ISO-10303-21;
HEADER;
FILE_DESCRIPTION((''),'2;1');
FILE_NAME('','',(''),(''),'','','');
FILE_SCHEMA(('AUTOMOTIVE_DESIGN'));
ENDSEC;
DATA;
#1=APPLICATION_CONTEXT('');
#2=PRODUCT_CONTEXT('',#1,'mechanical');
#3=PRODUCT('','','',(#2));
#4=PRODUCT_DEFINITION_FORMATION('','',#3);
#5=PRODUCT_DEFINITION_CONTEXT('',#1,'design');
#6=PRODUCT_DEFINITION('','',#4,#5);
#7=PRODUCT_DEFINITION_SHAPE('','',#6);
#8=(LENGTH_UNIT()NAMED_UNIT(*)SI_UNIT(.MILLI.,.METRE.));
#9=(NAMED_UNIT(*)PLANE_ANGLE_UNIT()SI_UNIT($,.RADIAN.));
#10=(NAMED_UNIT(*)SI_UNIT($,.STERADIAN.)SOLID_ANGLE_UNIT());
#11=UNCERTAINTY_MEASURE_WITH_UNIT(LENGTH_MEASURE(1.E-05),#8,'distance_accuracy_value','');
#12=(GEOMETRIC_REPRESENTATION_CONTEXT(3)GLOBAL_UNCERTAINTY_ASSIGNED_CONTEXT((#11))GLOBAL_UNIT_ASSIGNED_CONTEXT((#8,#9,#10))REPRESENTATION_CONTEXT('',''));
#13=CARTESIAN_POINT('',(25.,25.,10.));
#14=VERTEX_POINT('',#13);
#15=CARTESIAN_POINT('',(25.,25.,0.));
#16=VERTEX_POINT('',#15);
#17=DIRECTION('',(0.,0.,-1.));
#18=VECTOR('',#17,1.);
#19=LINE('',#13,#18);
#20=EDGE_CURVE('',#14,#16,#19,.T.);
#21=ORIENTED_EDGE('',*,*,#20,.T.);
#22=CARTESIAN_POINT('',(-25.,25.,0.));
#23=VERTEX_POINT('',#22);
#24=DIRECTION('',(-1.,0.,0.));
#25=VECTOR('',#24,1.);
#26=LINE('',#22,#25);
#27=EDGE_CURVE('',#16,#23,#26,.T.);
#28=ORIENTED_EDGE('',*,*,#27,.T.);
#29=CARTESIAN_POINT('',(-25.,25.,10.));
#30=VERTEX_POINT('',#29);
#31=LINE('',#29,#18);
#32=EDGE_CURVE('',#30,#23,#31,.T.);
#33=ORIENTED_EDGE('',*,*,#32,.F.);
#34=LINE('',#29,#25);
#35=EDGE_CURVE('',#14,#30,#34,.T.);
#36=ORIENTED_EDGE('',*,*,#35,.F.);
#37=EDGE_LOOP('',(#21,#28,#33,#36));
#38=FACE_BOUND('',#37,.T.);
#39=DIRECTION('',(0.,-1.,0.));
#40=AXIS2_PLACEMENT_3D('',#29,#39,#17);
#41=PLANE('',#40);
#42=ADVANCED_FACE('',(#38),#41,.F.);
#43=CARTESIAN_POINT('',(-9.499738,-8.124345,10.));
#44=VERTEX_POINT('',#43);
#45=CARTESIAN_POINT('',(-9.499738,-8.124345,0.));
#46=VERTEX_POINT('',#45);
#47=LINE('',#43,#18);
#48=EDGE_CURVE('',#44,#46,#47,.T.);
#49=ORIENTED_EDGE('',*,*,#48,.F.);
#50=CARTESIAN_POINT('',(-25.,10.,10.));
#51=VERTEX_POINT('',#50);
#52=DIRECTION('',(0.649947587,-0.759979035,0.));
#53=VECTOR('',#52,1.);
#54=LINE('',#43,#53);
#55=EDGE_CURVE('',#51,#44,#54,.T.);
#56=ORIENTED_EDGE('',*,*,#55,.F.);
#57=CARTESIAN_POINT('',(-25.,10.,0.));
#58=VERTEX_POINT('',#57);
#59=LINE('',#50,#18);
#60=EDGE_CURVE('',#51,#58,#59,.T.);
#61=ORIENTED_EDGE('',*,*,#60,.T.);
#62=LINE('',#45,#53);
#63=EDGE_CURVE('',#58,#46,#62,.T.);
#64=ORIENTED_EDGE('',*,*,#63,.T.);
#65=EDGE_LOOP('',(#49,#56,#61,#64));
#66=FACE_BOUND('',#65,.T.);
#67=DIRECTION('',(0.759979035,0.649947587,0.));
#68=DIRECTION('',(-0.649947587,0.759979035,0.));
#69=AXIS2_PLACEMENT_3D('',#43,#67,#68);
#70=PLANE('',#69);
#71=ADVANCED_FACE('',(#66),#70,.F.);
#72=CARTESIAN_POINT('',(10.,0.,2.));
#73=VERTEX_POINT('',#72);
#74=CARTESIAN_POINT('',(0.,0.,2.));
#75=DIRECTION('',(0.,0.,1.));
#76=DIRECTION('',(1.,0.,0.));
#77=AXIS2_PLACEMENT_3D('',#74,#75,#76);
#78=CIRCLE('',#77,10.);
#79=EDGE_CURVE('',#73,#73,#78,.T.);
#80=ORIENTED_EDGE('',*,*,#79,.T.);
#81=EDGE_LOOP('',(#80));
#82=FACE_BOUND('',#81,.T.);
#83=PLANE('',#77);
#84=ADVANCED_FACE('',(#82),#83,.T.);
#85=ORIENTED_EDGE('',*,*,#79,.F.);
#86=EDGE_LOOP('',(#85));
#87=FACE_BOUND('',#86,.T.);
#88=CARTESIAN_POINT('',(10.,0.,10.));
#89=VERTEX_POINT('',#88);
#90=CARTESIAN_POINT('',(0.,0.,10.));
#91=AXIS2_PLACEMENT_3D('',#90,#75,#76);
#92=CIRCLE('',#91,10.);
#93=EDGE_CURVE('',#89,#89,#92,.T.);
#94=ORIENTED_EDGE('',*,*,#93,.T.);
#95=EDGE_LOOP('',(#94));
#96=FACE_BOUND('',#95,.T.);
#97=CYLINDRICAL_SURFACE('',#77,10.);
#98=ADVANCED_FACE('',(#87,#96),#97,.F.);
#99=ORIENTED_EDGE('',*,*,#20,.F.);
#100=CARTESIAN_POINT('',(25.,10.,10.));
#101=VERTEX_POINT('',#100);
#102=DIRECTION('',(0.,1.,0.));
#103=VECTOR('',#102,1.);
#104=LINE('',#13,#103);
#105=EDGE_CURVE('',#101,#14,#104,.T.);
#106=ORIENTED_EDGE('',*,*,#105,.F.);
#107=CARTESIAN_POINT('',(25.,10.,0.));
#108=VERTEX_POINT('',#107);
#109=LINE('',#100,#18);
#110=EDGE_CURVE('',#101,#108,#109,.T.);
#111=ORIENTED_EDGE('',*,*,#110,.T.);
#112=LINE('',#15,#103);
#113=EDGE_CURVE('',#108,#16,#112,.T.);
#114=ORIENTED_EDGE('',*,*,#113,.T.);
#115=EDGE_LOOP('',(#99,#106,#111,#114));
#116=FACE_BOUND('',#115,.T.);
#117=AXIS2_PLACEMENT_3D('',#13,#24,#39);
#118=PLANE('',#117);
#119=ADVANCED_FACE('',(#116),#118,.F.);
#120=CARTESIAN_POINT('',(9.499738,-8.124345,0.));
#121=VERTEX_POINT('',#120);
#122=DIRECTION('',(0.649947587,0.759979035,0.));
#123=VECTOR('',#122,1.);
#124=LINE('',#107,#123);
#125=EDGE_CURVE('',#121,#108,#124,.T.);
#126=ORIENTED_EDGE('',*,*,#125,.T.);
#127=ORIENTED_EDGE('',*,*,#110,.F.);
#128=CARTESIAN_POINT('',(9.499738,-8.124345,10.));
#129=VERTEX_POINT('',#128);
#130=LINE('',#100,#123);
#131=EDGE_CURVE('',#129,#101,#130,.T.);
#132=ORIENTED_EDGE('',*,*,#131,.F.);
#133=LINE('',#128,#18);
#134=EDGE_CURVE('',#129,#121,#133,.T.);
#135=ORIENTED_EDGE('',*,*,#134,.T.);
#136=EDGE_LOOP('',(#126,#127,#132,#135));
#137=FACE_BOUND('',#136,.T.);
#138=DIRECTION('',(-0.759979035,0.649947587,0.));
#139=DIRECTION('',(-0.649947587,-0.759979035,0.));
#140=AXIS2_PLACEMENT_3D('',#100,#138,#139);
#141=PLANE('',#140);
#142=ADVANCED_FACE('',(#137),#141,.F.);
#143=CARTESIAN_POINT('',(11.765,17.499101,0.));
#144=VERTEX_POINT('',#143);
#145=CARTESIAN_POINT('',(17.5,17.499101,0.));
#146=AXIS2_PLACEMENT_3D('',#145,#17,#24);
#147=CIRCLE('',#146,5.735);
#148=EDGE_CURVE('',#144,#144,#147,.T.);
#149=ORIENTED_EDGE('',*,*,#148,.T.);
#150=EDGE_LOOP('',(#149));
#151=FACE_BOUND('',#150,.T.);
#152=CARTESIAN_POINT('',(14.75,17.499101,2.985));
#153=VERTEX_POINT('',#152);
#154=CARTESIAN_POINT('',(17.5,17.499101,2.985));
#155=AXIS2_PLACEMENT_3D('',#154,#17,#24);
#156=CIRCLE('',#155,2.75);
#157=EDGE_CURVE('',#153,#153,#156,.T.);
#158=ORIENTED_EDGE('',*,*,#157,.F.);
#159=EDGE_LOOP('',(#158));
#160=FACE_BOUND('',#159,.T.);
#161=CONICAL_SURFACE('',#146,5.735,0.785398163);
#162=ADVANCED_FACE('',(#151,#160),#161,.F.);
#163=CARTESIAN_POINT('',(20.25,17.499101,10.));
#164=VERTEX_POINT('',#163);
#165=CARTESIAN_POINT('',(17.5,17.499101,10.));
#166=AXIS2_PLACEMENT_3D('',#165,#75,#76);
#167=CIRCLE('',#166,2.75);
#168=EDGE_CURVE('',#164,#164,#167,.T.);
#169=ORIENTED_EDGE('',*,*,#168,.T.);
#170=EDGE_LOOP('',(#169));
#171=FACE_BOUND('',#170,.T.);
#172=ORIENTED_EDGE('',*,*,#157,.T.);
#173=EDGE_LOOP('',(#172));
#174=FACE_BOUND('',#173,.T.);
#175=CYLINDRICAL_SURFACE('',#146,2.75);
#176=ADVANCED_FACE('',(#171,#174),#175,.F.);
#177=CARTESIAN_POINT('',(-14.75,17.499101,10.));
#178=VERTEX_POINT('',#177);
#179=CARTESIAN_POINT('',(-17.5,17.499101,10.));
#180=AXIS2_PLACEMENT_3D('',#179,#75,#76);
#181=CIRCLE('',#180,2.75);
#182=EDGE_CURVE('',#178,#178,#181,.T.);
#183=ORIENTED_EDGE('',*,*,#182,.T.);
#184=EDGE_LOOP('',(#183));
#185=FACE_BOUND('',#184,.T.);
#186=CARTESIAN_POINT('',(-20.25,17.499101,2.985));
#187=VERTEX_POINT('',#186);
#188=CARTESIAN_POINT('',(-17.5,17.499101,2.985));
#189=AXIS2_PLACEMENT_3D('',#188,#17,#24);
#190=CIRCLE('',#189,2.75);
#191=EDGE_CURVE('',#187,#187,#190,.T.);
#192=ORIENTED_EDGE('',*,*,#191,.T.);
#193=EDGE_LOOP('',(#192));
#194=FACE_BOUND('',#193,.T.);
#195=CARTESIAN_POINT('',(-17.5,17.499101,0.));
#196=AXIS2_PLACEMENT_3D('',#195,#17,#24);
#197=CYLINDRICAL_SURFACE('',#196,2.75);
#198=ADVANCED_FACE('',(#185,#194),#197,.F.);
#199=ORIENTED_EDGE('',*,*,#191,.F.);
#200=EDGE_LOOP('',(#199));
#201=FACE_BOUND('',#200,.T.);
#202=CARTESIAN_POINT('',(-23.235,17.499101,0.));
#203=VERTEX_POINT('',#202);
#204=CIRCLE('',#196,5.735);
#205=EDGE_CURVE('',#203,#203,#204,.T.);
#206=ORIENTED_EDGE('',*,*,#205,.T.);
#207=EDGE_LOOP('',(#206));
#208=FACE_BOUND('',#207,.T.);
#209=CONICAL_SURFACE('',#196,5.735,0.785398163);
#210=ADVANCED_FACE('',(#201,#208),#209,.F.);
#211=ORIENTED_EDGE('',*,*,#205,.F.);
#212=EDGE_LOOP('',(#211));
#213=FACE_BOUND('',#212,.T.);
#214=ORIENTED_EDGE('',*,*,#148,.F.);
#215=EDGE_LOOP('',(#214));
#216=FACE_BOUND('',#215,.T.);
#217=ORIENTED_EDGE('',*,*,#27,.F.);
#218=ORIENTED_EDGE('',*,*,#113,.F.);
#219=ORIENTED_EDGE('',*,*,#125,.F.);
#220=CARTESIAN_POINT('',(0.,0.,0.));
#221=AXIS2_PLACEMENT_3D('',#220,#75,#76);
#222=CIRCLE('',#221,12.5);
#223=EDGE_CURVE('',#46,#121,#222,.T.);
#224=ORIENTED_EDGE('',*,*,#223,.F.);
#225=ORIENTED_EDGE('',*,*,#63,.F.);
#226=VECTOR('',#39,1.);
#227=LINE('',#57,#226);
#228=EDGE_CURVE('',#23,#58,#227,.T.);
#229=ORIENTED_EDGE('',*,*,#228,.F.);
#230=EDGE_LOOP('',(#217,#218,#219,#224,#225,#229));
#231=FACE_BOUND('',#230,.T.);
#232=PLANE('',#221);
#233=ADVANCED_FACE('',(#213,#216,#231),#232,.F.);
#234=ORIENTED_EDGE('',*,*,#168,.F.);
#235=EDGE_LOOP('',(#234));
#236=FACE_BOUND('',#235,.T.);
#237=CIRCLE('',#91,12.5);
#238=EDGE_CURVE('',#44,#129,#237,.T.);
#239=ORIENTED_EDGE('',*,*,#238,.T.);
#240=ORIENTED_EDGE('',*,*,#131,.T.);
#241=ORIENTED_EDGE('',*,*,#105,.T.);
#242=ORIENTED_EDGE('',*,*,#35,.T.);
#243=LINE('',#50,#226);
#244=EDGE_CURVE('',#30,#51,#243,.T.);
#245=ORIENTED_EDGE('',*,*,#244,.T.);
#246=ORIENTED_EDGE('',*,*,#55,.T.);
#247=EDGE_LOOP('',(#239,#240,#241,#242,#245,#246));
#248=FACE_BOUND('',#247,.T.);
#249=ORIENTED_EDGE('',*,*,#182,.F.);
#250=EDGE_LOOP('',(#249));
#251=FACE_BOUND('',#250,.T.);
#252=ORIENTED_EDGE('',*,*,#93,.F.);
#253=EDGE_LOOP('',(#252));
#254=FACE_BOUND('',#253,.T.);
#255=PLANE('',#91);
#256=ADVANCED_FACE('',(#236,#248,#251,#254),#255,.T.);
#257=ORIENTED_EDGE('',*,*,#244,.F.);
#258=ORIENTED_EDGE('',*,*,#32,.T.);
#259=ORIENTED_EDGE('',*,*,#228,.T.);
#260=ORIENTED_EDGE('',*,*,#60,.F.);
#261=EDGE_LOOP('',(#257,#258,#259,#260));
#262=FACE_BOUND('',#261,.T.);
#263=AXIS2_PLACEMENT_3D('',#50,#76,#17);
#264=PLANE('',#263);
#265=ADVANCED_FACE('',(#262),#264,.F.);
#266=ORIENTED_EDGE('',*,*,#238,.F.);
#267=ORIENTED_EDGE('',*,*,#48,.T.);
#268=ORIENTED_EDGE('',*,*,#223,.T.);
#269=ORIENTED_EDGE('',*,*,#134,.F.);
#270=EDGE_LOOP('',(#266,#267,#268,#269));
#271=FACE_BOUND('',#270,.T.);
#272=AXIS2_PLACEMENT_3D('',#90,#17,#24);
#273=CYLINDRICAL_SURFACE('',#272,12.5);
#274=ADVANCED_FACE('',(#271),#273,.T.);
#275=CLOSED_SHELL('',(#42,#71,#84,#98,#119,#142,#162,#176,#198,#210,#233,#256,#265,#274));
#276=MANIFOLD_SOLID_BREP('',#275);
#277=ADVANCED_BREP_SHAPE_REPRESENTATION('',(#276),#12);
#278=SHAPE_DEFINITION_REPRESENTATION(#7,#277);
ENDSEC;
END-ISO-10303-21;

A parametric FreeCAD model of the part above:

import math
import FreeCAD as App
import Part
import Sketcher

V = App.Vector
Q = App.Units.Quantity

doc = App.newDocument("Part")
body = doc.addObject("PartDesign::Body", "Body")

# Sketch on XY plane
sketch1 = body.newObject("Sketcher::SketchObject", "Sketch")
sketch1.AttachmentSupport = (doc.getObject("XY_Plane"), [""])
sketch1.MapMode = "FlatFace"
sketch1.addGeometry([
    Part.LineSegment(V(-25, 10, 0), V(-9.499738, -8.124345, 0)),  # 0
    Part.ArcOfCircle(Part.Circle(V(0, 0, 0), V(0, 0, 1), 12.5), math.radians(-139.46235), math.radians(-40.53765)),  # 1
    Part.LineSegment(V(9.499738, -8.124345, 0), V(25, 10, 0)),  # 2
    Part.LineSegment(V(25, 10, 0), V(25, 25, 0)),  # 3
    Part.LineSegment(V(25, 25, 0), V(-25, 25, 0)),  # 4
    Part.LineSegment(V(-25, 25, 0), V(-25, 10, 0)),  # 5
], False)
sketch1.addConstraint([
    Sketcher.Constraint("Tangent", 0, 2, 1, 1),
    Sketcher.Constraint("Tangent", 1, 2, 2, 1),
    Sketcher.Constraint("Coincident", 2, 2, 3, 1),
    Sketcher.Constraint("Coincident", 3, 2, 4, 1),
    Sketcher.Constraint("Coincident", 4, 2, 5, 1),
    Sketcher.Constraint("Coincident", 5, 2, 0, 1),
    Sketcher.Constraint("Vertical", 3),
    Sketcher.Constraint("Horizontal", 4),
    Sketcher.Constraint("Vertical", 5),
    Sketcher.Constraint("Coincident", 1, 3, -1, 1),
    Sketcher.Constraint("Symmetric", 2, 2, 5, 2, -2),
    Sketcher.Constraint("Radius", 1, Q("12.5 mm")),
    Sketcher.Constraint("DistanceX", 4, 2, 4, 1, Q("50 mm")),
    Sketcher.Constraint("DistanceY", 3, 1, 3, 2, Q("15 mm")),
    Sketcher.Constraint("DistanceY", -1, 1, 2, 2, Q("10 mm")),
])
pad1 = body.newObject("PartDesign::Pad", "Pad")
pad1.Profile = sketch1
pad1.Length = 10

# Sketch on XY plane
sketch2 = body.newObject("Sketcher::SketchObject", "Sketch001")
sketch2.AttachmentSupport = (doc.getObject("XY_Plane"), [""])
sketch2.MapMode = "FlatFace"
sketch2.AttachmentOffset = App.Placement(V(0, 0, 10), App.Rotation())
sketch2.addGeometry(Part.Circle(V(0, 0, 0), V(0, 0, 1), 10), False)
sketch2.addConstraint([
    Sketcher.Constraint("Coincident", 0, 3, -1, 1),
    Sketcher.Constraint("Diameter", 0, Q("20 mm")),
])
pocket1 = body.newObject("PartDesign::Pocket", "Pocket")
pocket1.Profile = sketch2
pocket1.Length = 8

# Sketch on XY plane
sketch3 = body.newObject("Sketcher::SketchObject", "Sketch002")
sketch3.AttachmentSupport = (doc.getObject("XY_Plane"), [""])
sketch3.MapMode = "FlatFace"
sketch3.addGeometry([
    Part.Circle(V(17.5, 17.499101, 0), V(0, 0, 1), 2.75),
    Part.Circle(V(-17.5, 17.499101, 0), V(0, 0, 1), 2.75),
], False)
sketch3.addConstraint([
    Sketcher.Constraint("Equal", 0, 1),
    Sketcher.Constraint("Symmetric", 0, 3, 1, 3, -2),
    Sketcher.Constraint("Diameter", 0, Q("5.5 mm")),
    Sketcher.Constraint("DistanceX", 1, 3, 0, 3, Q("35 mm")),
    Sketcher.Constraint("DistanceY", -1, 1, 0, 3, Q("17.499101 mm")),
])
doc.recompute()
hole = body.newObject("PartDesign::Hole", "Hole")
hole.Profile = sketch3
hole.ThreadType = "None"
hole.Diameter = 5.5
hole.DepthType = "Dimension"
hole.Depth = 10
hole.DrillPoint = "Flat"
hole.HoleCutType = "Countersink"
hole.HoleCutDiameter = 11.47
hole.HoleCutCountersinkAngle = 90
hole.Reversed = True

doc.recompute()
